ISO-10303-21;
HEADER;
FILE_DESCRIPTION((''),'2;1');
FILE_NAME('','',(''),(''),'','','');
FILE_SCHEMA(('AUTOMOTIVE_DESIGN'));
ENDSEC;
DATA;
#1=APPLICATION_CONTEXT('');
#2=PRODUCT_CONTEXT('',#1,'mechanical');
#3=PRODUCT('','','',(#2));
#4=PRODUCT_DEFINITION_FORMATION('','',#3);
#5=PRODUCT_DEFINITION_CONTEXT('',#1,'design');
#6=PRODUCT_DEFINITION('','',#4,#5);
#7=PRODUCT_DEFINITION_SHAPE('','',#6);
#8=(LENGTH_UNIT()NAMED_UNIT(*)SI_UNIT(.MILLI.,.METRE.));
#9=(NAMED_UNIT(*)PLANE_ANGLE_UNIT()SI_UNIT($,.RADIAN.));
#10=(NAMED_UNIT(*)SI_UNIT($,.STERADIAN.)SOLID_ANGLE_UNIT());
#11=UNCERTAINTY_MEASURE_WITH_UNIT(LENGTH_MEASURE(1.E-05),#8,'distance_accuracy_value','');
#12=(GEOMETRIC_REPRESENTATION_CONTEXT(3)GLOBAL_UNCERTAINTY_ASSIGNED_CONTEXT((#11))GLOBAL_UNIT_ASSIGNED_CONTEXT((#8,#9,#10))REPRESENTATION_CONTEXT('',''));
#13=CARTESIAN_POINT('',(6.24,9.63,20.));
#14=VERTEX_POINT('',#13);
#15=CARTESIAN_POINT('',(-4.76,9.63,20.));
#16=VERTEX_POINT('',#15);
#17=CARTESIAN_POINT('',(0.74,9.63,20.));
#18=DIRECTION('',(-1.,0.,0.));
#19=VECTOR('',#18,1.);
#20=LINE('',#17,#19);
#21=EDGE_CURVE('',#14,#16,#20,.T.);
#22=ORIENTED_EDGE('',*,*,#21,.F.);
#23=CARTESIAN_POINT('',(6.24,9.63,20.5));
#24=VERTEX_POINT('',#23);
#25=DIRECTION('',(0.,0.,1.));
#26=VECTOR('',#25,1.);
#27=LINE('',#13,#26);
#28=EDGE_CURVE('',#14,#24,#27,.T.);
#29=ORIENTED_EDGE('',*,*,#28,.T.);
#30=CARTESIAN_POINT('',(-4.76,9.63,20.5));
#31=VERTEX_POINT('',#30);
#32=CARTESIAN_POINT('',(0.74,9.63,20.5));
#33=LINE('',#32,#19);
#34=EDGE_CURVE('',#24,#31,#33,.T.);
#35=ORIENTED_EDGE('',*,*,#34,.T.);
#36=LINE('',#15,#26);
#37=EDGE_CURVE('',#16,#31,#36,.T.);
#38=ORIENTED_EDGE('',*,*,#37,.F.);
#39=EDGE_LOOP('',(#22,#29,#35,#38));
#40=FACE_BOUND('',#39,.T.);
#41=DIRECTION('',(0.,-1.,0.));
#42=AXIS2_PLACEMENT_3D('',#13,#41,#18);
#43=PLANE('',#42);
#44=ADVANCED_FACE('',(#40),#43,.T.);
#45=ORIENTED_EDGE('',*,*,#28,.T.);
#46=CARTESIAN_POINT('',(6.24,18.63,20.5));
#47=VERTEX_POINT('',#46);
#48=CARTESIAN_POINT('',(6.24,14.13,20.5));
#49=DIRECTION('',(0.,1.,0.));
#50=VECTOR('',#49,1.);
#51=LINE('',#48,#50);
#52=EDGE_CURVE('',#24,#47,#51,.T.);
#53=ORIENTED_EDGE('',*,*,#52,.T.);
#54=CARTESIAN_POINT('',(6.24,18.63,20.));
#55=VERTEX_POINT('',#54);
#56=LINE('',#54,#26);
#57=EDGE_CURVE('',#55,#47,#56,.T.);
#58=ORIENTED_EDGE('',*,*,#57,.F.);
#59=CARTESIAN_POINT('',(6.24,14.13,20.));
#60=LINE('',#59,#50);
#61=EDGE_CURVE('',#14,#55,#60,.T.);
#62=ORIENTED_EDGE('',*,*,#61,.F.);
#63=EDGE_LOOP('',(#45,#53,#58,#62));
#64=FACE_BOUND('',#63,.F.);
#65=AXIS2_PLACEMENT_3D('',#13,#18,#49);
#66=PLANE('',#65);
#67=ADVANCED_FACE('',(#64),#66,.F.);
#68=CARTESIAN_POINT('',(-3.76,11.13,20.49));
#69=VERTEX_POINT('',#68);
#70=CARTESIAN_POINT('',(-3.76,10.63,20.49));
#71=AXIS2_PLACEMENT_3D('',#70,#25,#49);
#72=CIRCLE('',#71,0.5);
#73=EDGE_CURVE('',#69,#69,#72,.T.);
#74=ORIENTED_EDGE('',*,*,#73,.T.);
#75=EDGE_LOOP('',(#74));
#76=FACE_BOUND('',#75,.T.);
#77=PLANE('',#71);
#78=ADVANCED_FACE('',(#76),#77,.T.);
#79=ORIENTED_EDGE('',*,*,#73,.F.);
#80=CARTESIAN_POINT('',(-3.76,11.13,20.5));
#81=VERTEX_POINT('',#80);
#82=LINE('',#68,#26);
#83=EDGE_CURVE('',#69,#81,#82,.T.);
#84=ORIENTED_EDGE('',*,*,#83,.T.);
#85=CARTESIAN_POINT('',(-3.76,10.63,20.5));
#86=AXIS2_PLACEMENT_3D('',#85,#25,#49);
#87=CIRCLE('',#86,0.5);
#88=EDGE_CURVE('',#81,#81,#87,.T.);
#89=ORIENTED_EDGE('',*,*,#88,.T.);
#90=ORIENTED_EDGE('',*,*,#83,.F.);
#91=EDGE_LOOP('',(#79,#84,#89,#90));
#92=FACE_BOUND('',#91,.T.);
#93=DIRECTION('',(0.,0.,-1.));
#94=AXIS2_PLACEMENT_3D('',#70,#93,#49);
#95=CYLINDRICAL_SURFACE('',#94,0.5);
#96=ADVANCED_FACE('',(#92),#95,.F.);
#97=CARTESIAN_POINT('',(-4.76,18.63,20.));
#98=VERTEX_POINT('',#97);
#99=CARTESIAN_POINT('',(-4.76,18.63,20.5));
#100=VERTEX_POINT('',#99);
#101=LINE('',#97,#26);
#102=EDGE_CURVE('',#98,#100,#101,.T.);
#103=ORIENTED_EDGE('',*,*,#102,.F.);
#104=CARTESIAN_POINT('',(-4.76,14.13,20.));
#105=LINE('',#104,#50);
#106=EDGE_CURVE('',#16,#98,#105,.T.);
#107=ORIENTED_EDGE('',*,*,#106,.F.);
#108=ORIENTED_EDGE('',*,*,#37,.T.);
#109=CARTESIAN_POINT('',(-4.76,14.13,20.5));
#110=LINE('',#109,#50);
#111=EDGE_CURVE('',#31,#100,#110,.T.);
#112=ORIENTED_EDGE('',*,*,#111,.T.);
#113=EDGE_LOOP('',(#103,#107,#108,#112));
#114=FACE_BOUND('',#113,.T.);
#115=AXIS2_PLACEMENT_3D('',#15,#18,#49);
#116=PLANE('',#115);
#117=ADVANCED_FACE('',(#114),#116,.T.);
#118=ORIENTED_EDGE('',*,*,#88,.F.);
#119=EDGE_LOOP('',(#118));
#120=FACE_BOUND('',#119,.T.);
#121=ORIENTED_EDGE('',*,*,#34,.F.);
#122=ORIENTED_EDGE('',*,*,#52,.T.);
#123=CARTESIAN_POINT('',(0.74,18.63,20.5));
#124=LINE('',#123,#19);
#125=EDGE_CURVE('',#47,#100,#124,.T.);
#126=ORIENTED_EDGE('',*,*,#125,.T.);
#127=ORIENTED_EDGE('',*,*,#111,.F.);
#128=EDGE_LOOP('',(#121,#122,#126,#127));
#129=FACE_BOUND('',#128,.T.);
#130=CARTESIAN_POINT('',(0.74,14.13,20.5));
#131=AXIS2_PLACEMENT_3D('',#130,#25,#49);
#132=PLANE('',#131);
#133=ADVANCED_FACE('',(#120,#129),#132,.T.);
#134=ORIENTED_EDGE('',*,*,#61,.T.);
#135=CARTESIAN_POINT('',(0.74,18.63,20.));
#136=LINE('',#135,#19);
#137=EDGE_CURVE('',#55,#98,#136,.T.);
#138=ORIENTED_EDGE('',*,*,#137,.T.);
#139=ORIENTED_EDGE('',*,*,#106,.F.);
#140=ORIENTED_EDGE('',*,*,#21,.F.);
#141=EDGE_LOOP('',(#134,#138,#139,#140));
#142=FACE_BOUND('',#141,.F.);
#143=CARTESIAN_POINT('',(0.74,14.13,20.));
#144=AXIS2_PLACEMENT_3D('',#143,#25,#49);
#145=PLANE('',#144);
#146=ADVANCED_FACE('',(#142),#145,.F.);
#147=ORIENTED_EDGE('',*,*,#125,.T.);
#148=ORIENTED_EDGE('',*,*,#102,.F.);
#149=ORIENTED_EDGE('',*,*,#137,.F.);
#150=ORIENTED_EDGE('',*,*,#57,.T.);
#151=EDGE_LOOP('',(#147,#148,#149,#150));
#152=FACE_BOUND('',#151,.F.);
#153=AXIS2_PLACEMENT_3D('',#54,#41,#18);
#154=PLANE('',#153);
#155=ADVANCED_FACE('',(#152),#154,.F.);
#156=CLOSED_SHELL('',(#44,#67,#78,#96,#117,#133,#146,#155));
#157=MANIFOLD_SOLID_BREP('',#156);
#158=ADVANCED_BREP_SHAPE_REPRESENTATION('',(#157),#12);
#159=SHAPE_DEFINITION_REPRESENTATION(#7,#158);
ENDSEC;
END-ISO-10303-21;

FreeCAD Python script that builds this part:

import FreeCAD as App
import Part
import Sketcher


def add_polygon(sketch, points):
    """Adds a closed chain of lines whose ends are joined by coincident constraints."""
    first, n = sketch.GeometryCount, len(points)
    for a, b in zip(points, points[1:] + points[:1]):
        sketch.addGeometry(Part.LineSegment(App.Vector(*a, 0), App.Vector(*b, 0)), False)
    for i in range(n):
        sketch.addConstraint(Sketcher.Constraint("Coincident", first + i, 2, first + (i + 1) % n, 1))

doc = App.newDocument("Part")
body = doc.addObject("PartDesign::Body", "Body")

# Sketch on XY plane
sketch1 = body.newObject("Sketcher::SketchObject", "Sketch")
sketch1.AttachmentSupport = (doc.getObject("XY_Plane"), [""])
sketch1.MapMode = "FlatFace"
sketch1.AttachmentOffset = App.Placement(App.Vector(0, 0, 0.49), App.Rotation())
sketch1.addGeometry(Part.Circle(App.Vector(1, 10, 0), App.Vector(0, 0, 1), 0.5), False)
sketch1.addConstraint(Sketcher.Constraint("Diameter", 0, 1.0))
sketch1.addConstraint(Sketcher.Constraint("DistanceX", -1, 1, 0, 3, 1.0))
sketch1.addConstraint(Sketcher.Constraint("DistanceY", -1, 1, 0, 3, 10.0))
pad1 = body.newObject("PartDesign::Pad", "Pad")
pad1.Profile = sketch1
pad1.Length = 0.01
body2 = doc.addObject("PartDesign::Body", "Body001")

# Sketch on XY plane
sketch2 = body2.newObject("Sketcher::SketchObject", "Sketch001")
sketch2.AttachmentSupport = (doc.getObject("XY_Plane001"), [""])
sketch2.MapMode = "FlatFace"
add_polygon(sketch2, [(0, 11), (0, 0), (9, 0), (9, 11)])  # lines 0-3
sketch2.addConstraint(Sketcher.Constraint("Vertical", 0))
sketch2.addConstraint(Sketcher.Constraint("Horizontal", 1))
sketch2.addConstraint(Sketcher.Constraint("Vertical", 2))
sketch2.addConstraint(Sketcher.Constraint("Horizontal", 3))
sketch2.addConstraint(Sketcher.Constraint("Coincident", 0, 2, -1, 1))
sketch2.addConstraint(Sketcher.Constraint("DistanceX", 1, 1, 1, 2, 9.0))
sketch2.addConstraint(Sketcher.Constraint("DistanceY", 0, 2, 0, 1, 11.0))
pad2 = body2.newObject("PartDesign::Pad", "Pad001")
pad2.Profile = sketch2
pad2.Length = 0.5
doc.recompute()

boolean = body2.newObject("PartDesign::Boolean", "Boolean")
boolean.Type = "Cut"
boolean.addObjects([body])
body3 = doc.addObject("PartDesign::Body", "Body002")
doc.recompute()

body2.Placement = App.Placement(App.Vector(6.24, 9.63, 20), App.Rotation(App.Vector(0, 0, 1), 90))
boolean2 = body3.newObject("PartDesign::Boolean", "Boolean001")
boolean2.Type = "Fuse"
boolean2.addObjects([body2])

doc.recompute()
